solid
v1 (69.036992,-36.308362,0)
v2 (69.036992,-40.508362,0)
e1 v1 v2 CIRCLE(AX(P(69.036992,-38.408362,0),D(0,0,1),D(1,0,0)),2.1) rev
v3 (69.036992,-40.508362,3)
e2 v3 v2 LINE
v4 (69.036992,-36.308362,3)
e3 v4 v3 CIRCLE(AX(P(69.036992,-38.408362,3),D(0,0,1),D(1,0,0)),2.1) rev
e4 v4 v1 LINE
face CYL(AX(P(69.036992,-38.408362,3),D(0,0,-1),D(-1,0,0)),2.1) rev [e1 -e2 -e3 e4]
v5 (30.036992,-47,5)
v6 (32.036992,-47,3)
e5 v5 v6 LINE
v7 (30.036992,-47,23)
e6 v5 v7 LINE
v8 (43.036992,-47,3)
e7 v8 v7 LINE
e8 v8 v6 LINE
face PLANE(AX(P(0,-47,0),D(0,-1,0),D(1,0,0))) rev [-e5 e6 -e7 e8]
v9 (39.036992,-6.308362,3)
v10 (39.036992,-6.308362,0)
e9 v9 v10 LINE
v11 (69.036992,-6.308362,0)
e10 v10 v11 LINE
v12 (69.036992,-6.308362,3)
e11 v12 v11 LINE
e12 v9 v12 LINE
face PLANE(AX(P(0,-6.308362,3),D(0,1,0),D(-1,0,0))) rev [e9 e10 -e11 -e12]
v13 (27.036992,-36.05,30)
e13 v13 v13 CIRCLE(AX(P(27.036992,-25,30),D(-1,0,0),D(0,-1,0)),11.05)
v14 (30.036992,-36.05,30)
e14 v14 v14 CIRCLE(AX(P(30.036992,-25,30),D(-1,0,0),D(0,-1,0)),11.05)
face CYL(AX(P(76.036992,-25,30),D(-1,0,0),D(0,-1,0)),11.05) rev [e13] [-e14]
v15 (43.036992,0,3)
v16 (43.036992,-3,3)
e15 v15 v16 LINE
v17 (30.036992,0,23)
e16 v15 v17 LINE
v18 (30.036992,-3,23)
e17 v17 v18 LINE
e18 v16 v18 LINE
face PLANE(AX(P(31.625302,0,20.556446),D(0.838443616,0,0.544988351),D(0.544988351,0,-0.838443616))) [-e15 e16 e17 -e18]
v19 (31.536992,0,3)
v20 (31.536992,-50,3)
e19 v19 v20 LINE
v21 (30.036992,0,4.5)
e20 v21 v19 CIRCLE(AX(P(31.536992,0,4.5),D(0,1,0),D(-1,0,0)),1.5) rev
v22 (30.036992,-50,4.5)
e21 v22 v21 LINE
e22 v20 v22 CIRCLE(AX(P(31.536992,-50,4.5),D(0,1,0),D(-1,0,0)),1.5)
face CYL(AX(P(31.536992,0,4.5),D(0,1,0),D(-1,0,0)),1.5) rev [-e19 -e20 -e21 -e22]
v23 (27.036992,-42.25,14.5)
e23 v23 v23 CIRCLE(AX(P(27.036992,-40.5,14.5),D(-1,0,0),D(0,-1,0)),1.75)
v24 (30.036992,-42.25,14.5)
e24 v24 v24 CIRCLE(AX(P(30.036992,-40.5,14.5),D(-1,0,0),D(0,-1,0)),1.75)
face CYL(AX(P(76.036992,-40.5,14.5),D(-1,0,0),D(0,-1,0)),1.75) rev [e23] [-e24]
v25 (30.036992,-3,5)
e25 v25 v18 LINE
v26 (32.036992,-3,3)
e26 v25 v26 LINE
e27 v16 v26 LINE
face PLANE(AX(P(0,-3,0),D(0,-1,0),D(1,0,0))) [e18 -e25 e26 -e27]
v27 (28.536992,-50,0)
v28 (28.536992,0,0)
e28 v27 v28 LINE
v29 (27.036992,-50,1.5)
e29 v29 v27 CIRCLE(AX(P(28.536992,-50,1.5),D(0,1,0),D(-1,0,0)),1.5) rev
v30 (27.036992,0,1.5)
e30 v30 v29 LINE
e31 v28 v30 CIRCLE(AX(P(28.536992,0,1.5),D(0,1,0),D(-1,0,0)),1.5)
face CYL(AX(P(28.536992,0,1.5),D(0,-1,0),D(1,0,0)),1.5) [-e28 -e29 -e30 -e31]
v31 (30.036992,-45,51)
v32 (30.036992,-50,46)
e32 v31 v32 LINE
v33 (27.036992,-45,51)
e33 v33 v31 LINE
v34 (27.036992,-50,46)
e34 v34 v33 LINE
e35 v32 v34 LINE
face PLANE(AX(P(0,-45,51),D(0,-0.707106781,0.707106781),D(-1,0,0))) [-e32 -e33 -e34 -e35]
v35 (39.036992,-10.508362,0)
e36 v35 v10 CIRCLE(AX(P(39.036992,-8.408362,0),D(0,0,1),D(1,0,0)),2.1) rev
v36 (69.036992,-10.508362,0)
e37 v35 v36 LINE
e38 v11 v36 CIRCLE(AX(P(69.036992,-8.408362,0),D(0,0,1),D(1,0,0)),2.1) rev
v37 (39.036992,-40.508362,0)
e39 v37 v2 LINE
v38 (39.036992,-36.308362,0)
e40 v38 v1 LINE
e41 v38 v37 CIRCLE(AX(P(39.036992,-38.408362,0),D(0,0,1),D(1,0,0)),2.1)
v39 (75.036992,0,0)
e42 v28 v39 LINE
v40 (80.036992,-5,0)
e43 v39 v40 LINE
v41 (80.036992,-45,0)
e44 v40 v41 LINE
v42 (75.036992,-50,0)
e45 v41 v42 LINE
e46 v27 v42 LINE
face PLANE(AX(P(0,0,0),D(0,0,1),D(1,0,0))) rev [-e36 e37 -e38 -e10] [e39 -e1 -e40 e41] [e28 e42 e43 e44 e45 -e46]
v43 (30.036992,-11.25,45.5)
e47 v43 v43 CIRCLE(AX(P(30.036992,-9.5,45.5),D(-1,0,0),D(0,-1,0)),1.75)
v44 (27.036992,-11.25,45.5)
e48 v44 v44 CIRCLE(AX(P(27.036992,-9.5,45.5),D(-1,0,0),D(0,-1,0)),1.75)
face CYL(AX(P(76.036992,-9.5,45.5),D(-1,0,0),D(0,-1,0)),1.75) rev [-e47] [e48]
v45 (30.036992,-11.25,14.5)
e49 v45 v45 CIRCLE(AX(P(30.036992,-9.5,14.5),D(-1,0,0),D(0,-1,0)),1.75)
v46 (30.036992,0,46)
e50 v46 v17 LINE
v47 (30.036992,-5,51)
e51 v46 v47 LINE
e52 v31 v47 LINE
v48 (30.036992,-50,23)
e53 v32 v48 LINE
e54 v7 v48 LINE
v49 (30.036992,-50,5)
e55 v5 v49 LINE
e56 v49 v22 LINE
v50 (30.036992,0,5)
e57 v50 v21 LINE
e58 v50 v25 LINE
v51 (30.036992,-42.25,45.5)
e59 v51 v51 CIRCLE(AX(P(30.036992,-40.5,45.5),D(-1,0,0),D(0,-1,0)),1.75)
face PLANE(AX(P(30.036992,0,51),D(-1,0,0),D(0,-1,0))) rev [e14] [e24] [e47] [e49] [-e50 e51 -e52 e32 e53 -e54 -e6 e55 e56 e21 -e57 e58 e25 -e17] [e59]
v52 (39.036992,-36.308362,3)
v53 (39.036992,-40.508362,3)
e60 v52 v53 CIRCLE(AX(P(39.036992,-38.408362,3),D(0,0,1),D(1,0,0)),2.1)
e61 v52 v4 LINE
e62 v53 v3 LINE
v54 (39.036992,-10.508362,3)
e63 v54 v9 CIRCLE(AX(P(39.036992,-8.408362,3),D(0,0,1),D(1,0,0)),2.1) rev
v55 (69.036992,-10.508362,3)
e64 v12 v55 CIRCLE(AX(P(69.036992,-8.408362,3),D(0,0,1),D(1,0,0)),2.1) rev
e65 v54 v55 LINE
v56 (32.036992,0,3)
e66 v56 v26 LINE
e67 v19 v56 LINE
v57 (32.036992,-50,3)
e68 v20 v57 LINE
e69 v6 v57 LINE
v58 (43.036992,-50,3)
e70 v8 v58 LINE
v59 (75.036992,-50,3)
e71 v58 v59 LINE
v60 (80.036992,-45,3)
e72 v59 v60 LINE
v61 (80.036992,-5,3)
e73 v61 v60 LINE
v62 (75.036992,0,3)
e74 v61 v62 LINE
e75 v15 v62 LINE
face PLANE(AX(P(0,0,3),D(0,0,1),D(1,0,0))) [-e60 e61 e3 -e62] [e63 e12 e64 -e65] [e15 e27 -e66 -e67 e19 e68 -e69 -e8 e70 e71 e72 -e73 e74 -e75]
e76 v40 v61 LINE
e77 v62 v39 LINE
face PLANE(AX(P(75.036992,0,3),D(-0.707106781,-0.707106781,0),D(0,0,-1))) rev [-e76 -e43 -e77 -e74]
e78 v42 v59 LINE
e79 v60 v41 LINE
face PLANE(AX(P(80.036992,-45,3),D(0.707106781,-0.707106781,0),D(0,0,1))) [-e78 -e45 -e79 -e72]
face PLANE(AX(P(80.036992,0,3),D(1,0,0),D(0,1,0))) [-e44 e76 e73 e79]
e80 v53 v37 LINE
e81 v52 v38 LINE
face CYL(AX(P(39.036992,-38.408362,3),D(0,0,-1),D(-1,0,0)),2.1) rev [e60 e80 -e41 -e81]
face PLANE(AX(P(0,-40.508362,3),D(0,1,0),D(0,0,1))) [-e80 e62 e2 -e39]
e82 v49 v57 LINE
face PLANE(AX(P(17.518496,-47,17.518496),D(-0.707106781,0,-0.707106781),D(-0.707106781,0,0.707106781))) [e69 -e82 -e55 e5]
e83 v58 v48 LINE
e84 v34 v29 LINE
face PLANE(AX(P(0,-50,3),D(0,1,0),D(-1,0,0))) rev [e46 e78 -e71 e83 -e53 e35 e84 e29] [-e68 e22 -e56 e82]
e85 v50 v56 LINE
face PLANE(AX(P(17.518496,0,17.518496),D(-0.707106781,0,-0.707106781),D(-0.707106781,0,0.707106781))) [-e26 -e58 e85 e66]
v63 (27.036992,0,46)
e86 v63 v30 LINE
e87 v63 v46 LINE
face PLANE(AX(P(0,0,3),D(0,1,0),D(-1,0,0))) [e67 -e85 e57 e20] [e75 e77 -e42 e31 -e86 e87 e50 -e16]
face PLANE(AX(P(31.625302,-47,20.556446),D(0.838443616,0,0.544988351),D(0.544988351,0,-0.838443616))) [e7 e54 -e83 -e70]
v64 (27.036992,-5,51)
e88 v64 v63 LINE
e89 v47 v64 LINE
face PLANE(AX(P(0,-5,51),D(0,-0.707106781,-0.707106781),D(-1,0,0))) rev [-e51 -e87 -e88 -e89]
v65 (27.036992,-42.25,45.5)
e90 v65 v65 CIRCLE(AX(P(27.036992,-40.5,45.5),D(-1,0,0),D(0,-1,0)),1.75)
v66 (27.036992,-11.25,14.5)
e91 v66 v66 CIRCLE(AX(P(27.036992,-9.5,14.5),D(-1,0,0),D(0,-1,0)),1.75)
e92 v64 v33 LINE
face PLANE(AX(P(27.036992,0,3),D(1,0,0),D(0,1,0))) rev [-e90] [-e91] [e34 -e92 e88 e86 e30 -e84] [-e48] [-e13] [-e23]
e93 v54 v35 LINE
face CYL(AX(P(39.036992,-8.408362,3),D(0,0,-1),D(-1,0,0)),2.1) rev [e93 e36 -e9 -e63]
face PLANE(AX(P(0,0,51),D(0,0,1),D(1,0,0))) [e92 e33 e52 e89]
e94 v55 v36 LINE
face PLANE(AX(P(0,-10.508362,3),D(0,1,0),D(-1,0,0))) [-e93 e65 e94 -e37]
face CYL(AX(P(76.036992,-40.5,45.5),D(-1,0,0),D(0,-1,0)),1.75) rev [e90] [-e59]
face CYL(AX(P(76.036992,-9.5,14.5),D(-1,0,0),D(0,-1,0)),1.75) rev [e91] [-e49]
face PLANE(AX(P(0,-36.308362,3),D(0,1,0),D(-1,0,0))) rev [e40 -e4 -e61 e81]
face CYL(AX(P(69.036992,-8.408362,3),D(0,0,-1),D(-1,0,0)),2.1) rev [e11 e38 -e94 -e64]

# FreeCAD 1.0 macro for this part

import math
import FreeCAD as App
import Part
import Sketcher
from FreeCAD import Vector
Q = App.Units.Quantity


def edges_at(feature, points):
    """Names of the edges that pass closest to the given points."""
    edges = feature.Shape.Edges
    near = lambda p: min(range(len(edges)), key=lambda i: edges[i].distToShape(Part.Vertex(*p))[0])
    return sorted({f"Edge{near(p) + 1}" for p in points})

doc = App.newDocument("Part")
body = doc.addObject("PartDesign::Body", "Body")

sketch1 = doc.addObject("Sketcher::SketchObject", "Sketch")
body.addObject(sketch1)
sketch1.AttachmentSupport = (doc.XY_Plane, [""])
sketch1.MapMode = "FlatFace"
sketch1.addGeometry([
    Part.LineSegment(Vector(27, 0, 0), Vector(27, -50, 0)),
    Part.LineSegment(Vector(27, -50, 0), Vector(80, -50, 0)),
    Part.LineSegment(Vector(80, -50, 0), Vector(80, 0, 0)),
    Part.LineSegment(Vector(80, 0, 0), Vector(27, 0, 0)),
    Part.ArcOfCircle(Part.Circle(Vector(39, -38.4, 0), Vector(0, 0, 1), 2.1), math.radians(90), math.radians(270)),
    Part.LineSegment(Vector(39, -36.3, 0), Vector(69, -36.3, 0)),
    Part.ArcOfCircle(Part.Circle(Vector(69, -38.4, 0), Vector(0, 0, 1), 2.1), math.radians(-90), math.radians(90)),
    Part.LineSegment(Vector(69, -40.5, 0), Vector(39, -40.5, 0)),
    Part.LineSegment(Vector(69, -10.5, 0), Vector(39, -10.5, 0)),
    Part.ArcOfCircle(Part.Circle(Vector(39, -8.4, 0), Vector(0, 0, 1), 2.1), math.radians(90), math.radians(270)),
    Part.LineSegment(Vector(39, -6.3, 0), Vector(69, -6.3, 0)),
    Part.ArcOfCircle(Part.Circle(Vector(69, -8.4, 0), Vector(0, 0, 1), 2.1), math.radians(-90), math.radians(90)),
], False)
sketch1.addConstraint([
    Sketcher.Constraint("Coincident", 0, 2, 1, 1),
    Sketcher.Constraint("Coincident", 1, 2, 2, 1),
    Sketcher.Constraint("Coincident", 2, 2, 3, 1),
    Sketcher.Constraint("Coincident", 3, 2, 0, 1),
    Sketcher.Constraint("Tangent", 4, 1, 5, 1),
    Sketcher.Constraint("Tangent", 5, 2, 6, 2),
    Sketcher.Constraint("Tangent", 6, 1, 7, 1),
    Sketcher.Constraint("Tangent", 7, 2, 4, 2),
    Sketcher.Constraint("Tangent", 8, 2, 9, 2),
    Sketcher.Constraint("Tangent", 9, 1, 10, 1),
    Sketcher.Constraint("Tangent", 10, 2, 11, 2),
    Sketcher.Constraint("Tangent", 11, 1, 8, 1),
    Sketcher.Constraint("Vertical", 0),
    Sketcher.Constraint("Horizontal", 1),
    Sketcher.Constraint("Vertical", 2),
    Sketcher.Constraint("Horizontal", 3),
    Sketcher.Constraint("Horizontal", 5),
    Sketcher.Constraint("Horizontal", 7),
    Sketcher.Constraint("Horizontal", 8),
    Sketcher.Constraint("Horizontal", 10),
    Sketcher.Constraint("Equal", 6, 9),
    Sketcher.Constraint("PointOnObject", 2, 2, -1),
    Sketcher.Constraint("Vertical", 4, 3, 9, 3),
    Sketcher.Constraint("Vertical", 6, 3, 11, 3),
    Sketcher.Constraint("Radius", 4, 2.1),
    Sketcher.Constraint("DistanceX", 1, 1, 1, 2, 53.0),
    Sketcher.Constraint("DistanceX", 5, 1, 5, 2, 30.0),
    Sketcher.Constraint("DistanceY", 0, 2, 0, 1, 50.0),
    Sketcher.Constraint("DistanceY", 4, 3, 9, 3, 30.0),
    Sketcher.Constraint("DistanceX", 0, 2, 4, 3, 12.0),
    Sketcher.Constraint("DistanceX", -1, 1, 4, 3, 39.036992),
    Sketcher.Constraint("DistanceY", 4, 3, -1, 1, 38.408362),
])
pad1 = doc.addObject("PartDesign::Pad", "Pad")
body.addObject(pad1)
pad1.Profile = sketch1
pad1.Length = 3

sketch2 = doc.addObject("Sketcher::SketchObject", "Sketch001")
body.addObject(sketch2)
sketch2.AttachmentSupport = (doc.XY_Plane, [""])
sketch2.MapMode = "FlatFace"
sketch2.AttachmentOffset = App.Placement(Vector(0, 0, 3), App.Rotation())
sketch2.addGeometry([
    Part.LineSegment(Vector(27, 0, 0), Vector(27, -50, 0)),
    Part.LineSegment(Vector(27, -50, 0), Vector(30, -50, 0)),
    Part.LineSegment(Vector(30, -50, 0), Vector(30, 0, 0)),
    Part.LineSegment(Vector(30, 0, 0), Vector(27, 0, 0)),
], False)
sketch2.addConstraint([
    Sketcher.Constraint("Coincident", 0, 2, 1, 1),
    Sketcher.Constraint("Coincident", 1, 2, 2, 1),
    Sketcher.Constraint("Coincident", 2, 2, 3, 1),
    Sketcher.Constraint("Coincident", 3, 2, 0, 1),
    Sketcher.Constraint("Vertical", 0),
    Sketcher.Constraint("Horizontal", 1),
    Sketcher.Constraint("Vertical", 2),
    Sketcher.Constraint("Horizontal", 3),
    Sketcher.Constraint("PointOnObject", 2, 2, -1),
    Sketcher.Constraint("DistanceX", 1, 1, 1, 2, 3.0),
    Sketcher.Constraint("DistanceY", 0, 2, 0, 1, 50.0),
    Sketcher.Constraint("DistanceX", -1, 1, 0, 2, 27.036992),
])
pad2 = doc.addObject("PartDesign::Pad", "Pad001")
body.addObject(pad2)
pad2.Profile = sketch2
pad2.Length = 48

sketch3 = doc.addObject("Sketcher::SketchObject", "Sketch002")
body.addObject(sketch3)
sketch3.AttachmentSupport = (doc.YZ_Plane, [""])
sketch3.MapMode = "FlatFace"
sketch3.AttachmentOffset = App.Placement(Vector(0, 0, 27.036992), App.Rotation())
sketch3.addGeometry([
    Part.Circle(Vector(-25, 30, 0), Vector(0, 0, 1), 11.1),
    Part.Circle(Vector(-9.5, 14.5, 0), Vector(0, 0, 1), 1.8),
    Part.Circle(Vector(-9.5, 45.5, 0), Vector(0, 0, 1), 1.8),
    Part.Circle(Vector(-40.5, 45.5, 0), Vector(0, 0, 1), 1.8),
    Part.Circle(Vector(-40.5, 14.5, 0), Vector(0, 0, 1), 1.8),
], False)
sketch3.addConstraint([
    Sketcher.Constraint("Equal", 1, 2),
    Sketcher.Constraint("Equal", 2, 3),
    Sketcher.Constraint("Equal", 3, 4),
    Sketcher.Constraint("Horizontal", 2, 3, 3, 3),
    Sketcher.Constraint("Horizontal", 1, 3, 4, 3),
    Sketcher.Constraint("Vertical", 1, 3, 2, 3),
    Sketcher.Constraint("Vertical", 3, 3, 4, 3),
    Sketcher.Constraint("Diameter", 0, 22.1),
    Sketcher.Constraint("Diameter", 1, 3.5),
    Sketcher.Constraint("DistanceX", 0, 3, -1, 1, 25.0),
    Sketcher.Constraint("DistanceY", -1, 1, 0, 3, 30.0),
    Sketcher.Constraint("DistanceY", 1, 3, 2, 3, 31.0),
    Sketcher.Constraint("DistanceX", 3, 3, 2, 3, 31.0),
    Sketcher.Constraint("DistanceX", 1, 3, -1, 1, 9.5),
    Sketcher.Constraint("DistanceY", -1, 1, 1, 3, 14.5),
])
pocket1 = doc.addObject("PartDesign::Pocket", "Pocket")
body.addObject(pocket1)
pocket1.Profile = sketch3
pocket1.Length = 49
pocket1.Reversed = True
doc.recompute()

chamfer = doc.addObject("PartDesign::Chamfer", "Chamfer")
body.addObject(chamfer)
chamfer.Base = (pocket1, edges_at(pocket1, [
    (80.037, -50, 1.5),
    (80.037, 0, 1.5),
    (28.537, -50, 51),
    (28.537, 0, 51),
]))
chamfer.Size = 5

sketch4 = doc.addObject("Sketcher::SketchObject", "Sketch003")
body.addObject(sketch4)
sketch4.AttachmentSupport = (doc.XZ_Plane, [""])
sketch4.MapMode = "FlatFace"
sketch4.AttachmentOffset = App.Placement(Vector(0, 0, 50), App.Rotation())
sketch4.addGeometry([
    Part.LineSegment(Vector(30, 5, 0), Vector(32, 3, 0)),
    Part.LineSegment(Vector(32, 3, 0), Vector(43, 3, 0)),
    Part.LineSegment(Vector(43, 3, 0), Vector(30, 23, 0)),
    Part.LineSegment(Vector(30, 23, 0), Vector(30, 5, 0)),
], False)
sketch4.addConstraint([
    Sketcher.Constraint("Coincident", 0, 2, 1, 1),
    Sketcher.Constraint("Coincident", 1, 2, 2, 1),
    Sketcher.Constraint("Coincident", 2, 2, 3, 1),
    Sketcher.Constraint("Coincident", 3, 2, 0, 1),
    Sketcher.Constraint("Horizontal", 1),
    Sketcher.Constraint("Vertical", 3),
    Sketcher.Constraint("DistanceX", 1, 1, 1, 2, 11.0),
    Sketcher.Constraint("DistanceY", 3, 2, 3, 1, 18.0),
    Sketcher.Constraint("Angle", 0, Q("-45 deg")),
    Sketcher.Constraint("DistanceY", -1, 1, 0, 2, 3.0),
    Sketcher.Constraint("DistanceY", -1, 1, 2, 2, 23.0),
    Sketcher.Constraint("DistanceX", -1, 1, 0, 2, 32.036992),
])
pad3 = doc.addObject("PartDesign::Pad", "Pad002")
body.addObject(pad3)
pad3.Profile = sketch4
pad3.Length = 3
pad3.Reversed = True
doc.recompute()

linearpattern = doc.addObject("PartDesign::LinearPattern", "LinearPattern")
body.addObject(linearpattern)
linearpattern.Originals = [pad3]
linearpattern.Direction = (doc.Y_Axis, [""])
linearpattern.Mode = "offset"
linearpattern.Offset = 47
linearpattern.Occurrences = 2
body.Tip = linearpattern
doc.recompute()

fillet = doc.addObject("PartDesign::Fillet", "Fillet")
body.addObject(fillet)
fillet.Base = (linearpattern, edges_at(linearpattern, [(27.037, -25, 0), (30.037, -25, 3)]))
fillet.Radius = 1.5

doc.recompute()
